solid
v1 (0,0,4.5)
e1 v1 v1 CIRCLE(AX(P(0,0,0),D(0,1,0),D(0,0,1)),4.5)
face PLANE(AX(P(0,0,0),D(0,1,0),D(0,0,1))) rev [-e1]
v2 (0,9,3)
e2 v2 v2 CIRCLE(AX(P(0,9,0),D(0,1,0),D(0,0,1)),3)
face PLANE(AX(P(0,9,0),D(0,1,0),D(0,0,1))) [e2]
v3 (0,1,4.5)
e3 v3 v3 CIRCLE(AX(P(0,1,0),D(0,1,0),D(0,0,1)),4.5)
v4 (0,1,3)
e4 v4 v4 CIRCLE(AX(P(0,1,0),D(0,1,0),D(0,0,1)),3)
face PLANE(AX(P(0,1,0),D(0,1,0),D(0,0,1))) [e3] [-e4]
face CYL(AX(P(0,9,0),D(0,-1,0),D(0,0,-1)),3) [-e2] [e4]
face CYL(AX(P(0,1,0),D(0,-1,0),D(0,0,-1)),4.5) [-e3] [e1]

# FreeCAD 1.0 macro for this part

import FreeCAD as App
import Part
import Sketcher

doc = App.newDocument("Part")
params = doc.addObject("Spreadsheet::Sheet", "Params")
for row, (alias, value) in enumerate([
    ("sketch1_diameter", "9 mm"),
    ("pad1_length", "1 mm"),
    ("sketch2_diameter", "6 mm"),
    ("pad2_length", "8 mm"),
], start=1):
    params.set(f"A{row}", alias)
    params.set(f"B{row}", "=" + value)
    params.setAlias(f"B{row}", alias)

body = doc.addObject("PartDesign::Body", "Body")

# Sketch on XZ plane
sketch1 = body.newObject("Sketcher::SketchObject", "Sketch")
sketch1.AttachmentSupport = (doc.getObject("XZ_Plane"), [""])
sketch1.MapMode = "FlatFace"
sketch1.addGeometry(Part.Circle(App.Vector(0, 0, 0), App.Vector(0, 0, 1), 4.5), False)
sketch1.addConstraint(Sketcher.Constraint("Coincident", 0, 3, -1, 1))
sketch1.addConstraint(Sketcher.Constraint("Diameter", 0, 9.0))
sketch1.setExpression("Constraints[1]", "Params.sketch1_diameter")
pad1 = body.newObject("PartDesign::Pad", "Pad")
pad1.Profile = sketch1
pad1.setExpression("Length", "Params.pad1_length")
pad1.Reversed = True

# Sketch on XZ plane
sketch2 = body.newObject("Sketcher::SketchObject", "Sketch001")
sketch2.AttachmentSupport = (doc.getObject("XZ_Plane"), [""])
sketch2.MapMode = "FlatFace"
sketch2.AttachmentOffset = App.Placement(App.Vector(0, 0, -1), App.Rotation())
sketch2.addGeometry(Part.Circle(App.Vector(0, 0, 0), App.Vector(0, 0, 1), 3), False)
sketch2.addConstraint(Sketcher.Constraint("Coincident", 0, 3, -1, 1))
sketch2.addConstraint(Sketcher.Constraint("Diameter", 0, 6.0))
sketch2.setExpression("Constraints[1]", "Params.sketch2_diameter")
pad2 = body.newObject("PartDesign::Pad", "Pad001")
pad2.Profile = sketch2
pad2.setExpression("Length", "Params.pad2_length")
pad2.Reversed = True

doc.recompute()
